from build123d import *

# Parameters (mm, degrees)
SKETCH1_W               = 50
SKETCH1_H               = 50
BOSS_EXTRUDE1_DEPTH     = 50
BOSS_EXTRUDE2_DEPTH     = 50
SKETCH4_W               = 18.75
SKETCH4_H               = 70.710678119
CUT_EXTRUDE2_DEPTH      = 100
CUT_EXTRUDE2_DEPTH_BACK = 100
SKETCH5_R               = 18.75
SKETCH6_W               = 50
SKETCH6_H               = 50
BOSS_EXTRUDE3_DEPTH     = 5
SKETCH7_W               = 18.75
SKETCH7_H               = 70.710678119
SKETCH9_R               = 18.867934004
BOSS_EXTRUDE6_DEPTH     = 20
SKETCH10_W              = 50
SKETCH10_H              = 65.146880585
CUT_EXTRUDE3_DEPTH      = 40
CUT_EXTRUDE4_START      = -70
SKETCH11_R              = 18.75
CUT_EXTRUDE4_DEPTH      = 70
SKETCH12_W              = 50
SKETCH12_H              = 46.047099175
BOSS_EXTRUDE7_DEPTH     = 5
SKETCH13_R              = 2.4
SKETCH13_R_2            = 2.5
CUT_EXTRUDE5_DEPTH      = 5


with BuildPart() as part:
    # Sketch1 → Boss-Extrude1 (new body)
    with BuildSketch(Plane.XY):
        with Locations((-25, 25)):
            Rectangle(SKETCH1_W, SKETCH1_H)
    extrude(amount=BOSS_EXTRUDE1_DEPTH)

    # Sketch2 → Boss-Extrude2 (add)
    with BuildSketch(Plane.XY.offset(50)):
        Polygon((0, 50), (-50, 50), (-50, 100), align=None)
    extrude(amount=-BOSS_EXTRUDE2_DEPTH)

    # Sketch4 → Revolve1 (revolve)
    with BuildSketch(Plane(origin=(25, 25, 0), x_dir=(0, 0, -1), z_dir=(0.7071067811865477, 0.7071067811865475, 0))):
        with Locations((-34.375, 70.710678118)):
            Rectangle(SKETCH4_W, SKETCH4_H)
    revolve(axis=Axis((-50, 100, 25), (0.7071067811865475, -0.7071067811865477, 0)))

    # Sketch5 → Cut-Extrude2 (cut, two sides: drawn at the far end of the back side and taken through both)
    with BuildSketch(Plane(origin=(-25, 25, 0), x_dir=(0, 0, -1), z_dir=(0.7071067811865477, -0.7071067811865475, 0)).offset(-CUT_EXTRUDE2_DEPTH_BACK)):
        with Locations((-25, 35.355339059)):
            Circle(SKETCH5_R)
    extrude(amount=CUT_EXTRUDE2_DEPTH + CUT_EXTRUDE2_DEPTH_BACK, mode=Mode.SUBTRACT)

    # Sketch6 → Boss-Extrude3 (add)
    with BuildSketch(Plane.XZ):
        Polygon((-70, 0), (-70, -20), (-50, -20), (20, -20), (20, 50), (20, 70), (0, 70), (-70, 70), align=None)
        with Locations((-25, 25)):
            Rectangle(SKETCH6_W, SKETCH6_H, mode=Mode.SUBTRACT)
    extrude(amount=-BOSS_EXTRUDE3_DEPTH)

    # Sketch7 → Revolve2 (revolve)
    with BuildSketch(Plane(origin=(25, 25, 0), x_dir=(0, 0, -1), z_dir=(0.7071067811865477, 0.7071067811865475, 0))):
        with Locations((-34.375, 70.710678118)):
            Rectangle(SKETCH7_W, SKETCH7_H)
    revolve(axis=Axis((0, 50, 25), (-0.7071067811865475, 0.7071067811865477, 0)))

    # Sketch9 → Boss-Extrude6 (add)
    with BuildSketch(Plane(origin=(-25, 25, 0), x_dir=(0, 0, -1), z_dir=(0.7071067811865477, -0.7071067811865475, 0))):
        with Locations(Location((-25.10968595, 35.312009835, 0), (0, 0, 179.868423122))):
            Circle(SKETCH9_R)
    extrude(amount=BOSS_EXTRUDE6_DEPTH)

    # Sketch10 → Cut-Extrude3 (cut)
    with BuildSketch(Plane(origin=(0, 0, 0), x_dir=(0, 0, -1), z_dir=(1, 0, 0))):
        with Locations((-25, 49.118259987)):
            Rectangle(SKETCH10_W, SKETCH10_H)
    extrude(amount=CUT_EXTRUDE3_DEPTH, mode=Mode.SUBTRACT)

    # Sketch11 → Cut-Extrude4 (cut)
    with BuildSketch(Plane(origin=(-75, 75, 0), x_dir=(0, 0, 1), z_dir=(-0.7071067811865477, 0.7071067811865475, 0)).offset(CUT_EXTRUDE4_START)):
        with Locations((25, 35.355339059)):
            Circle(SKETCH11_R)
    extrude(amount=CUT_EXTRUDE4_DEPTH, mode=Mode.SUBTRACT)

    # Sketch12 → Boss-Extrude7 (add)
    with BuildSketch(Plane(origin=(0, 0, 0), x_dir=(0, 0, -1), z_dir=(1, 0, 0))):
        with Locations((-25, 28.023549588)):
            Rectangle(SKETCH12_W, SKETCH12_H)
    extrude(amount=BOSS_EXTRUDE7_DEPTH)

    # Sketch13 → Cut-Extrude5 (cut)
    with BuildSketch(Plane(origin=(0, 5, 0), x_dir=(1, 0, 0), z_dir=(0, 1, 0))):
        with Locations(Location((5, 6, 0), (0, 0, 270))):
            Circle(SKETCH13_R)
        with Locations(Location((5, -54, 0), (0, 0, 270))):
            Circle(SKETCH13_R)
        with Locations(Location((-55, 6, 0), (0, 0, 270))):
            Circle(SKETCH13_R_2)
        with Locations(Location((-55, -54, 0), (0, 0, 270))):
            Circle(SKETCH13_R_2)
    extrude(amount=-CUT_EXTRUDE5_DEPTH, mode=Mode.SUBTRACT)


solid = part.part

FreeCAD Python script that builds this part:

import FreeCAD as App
import Part
import Sketcher
from FreeCAD import Vector

doc = App.newDocument("Part")
params = doc.addObject("Spreadsheet::Sheet", "Params")
for row, (alias, value) in enumerate([
    ("sketch1_width", "50 mm"),
    ("pad1_length", "50 mm"),
    ("sketch2_width", "50 mm"),
    ("pad2_length", "50 mm"),
    ("sketch3_width", "18.75 mm"),
    ("revolution_angle", "360 deg"),
    ("sketch4_diameter", "37.5 mm"),
    ("sketch5_width", "90 mm"),
    ("sketch5_width2", "50 mm"),
    ("pad3_length", "5 mm"),
    ("sketch6_width", "18.75 mm"),
    ("revolution2_angle", "360 deg"),
    ("pad4_length", "20 mm"),
    ("sketch8_height", "50 mm"),
    ("pocket2_length", "40 mm"),
    ("sketch9_diameter", "37.5 mm"),
    ("pocket3_length", "70 mm"),
    ("sketch10_height", "50 mm"),
    ("pad5_length", "5 mm"),
    ("sketch11_diameter", "5 mm"),
    ("sketch11_diameter2", "4.8 mm"),
    ("pocket4_length", "5 mm"),
], start=1):
    params.set(f"A{row}", alias)
    params.set(f"B{row}", "=" + value)
    params.setAlias(f"B{row}", alias)

body = doc.addObject("PartDesign::Body", "Body")

sketch1 = body.newObject("Sketcher::SketchObject", "Sketch")
sketch1.AttachmentSupport = (doc.getObject("XY_Plane"), [""])
sketch1.MapMode = "FlatFace"
sketch1.addGeometry(Part.LineSegment(Vector(-50, 50, 0), Vector(-50, 0, 0)), False)
sketch1.addGeometry(Part.LineSegment(Vector(-50, 0, 0), Vector(0, 0, 0)), False)
sketch1.addGeometry(Part.LineSegment(Vector(0, 0, 0), Vector(0, 50, 0)), False)
sketch1.addGeometry(Part.LineSegment(Vector(0, 50, 0), Vector(-50, 50, 0)), False)
sketch1.addConstraint(Sketcher.Constraint("Coincident", 0, 2, 1, 1))
sketch1.addConstraint(Sketcher.Constraint("Coincident", 1, 2, 2, 1))
sketch1.addConstraint(Sketcher.Constraint("Coincident", 2, 2, 3, 1))
sketch1.addConstraint(Sketcher.Constraint("Coincident", 3, 2, 0, 1))
sketch1.addConstraint(Sketcher.Constraint("Vertical", 0))
sketch1.addConstraint(Sketcher.Constraint("Horizontal", 1))
sketch1.addConstraint(Sketcher.Constraint("Vertical", 2))
sketch1.addConstraint(Sketcher.Constraint("Horizontal", 3))
sketch1.addConstraint(Sketcher.Constraint("Coincident", 1, 2, -1, 1))
sketch1.addConstraint(Sketcher.Constraint("Equal", 3, 0))
sketch1.addConstraint(Sketcher.Constraint("DistanceX", 1, 1, 1, 2, 50.0))
sketch1.setExpression("Constraints[10]", "Params.sketch1_width")
pad1 = body.newObject("PartDesign::Pad", "Pad")
pad1.Profile = sketch1
pad1.setExpression("Length", "Params.pad1_length")

sketch2 = body.newObject("Sketcher::SketchObject", "Sketch001")
sketch2.AttachmentSupport = (doc.getObject("XY_Plane"), [""])
sketch2.MapMode = "FlatFace"
sketch2.AttachmentOffset = App.Placement(Vector(0, 0, 50), App.Rotation())
sketch2.addGeometry(Part.LineSegment(Vector(-50, 50, 0), Vector(0, 50, 0)), False)
sketch2.addGeometry(Part.LineSegment(Vector(0, 50, 0), Vector(-50, 100, 0)), False)
sketch2.addGeometry(Part.LineSegment(Vector(-50, 100, 0), Vector(-50, 50, 0)), False)
sketch2.addConstraint(Sketcher.Constraint("Coincident", 0, 2, 1, 1))
sketch2.addConstraint(Sketcher.Constraint("Coincident", 1, 2, 2, 1))
sketch2.addConstraint(Sketcher.Constraint("Coincident", 2, 2, 0, 1))
sketch2.addConstraint(Sketcher.Constraint("Horizontal", 0))
sketch2.addConstraint(Sketcher.Constraint("Vertical", 2))
sketch2.addConstraint(Sketcher.Constraint("PointOnObject", 0, 2, -2))
sketch2.addConstraint(Sketcher.Constraint("Equal", 0, 2))
sketch2.addConstraint(Sketcher.Constraint("DistanceX", 0, 1, 0, 2, 50.0))
sketch2.addConstraint(Sketcher.Constraint("DistanceY", -1, 1, 0, 2, 50.0))
sketch2.setExpression("Constraints[7]", "Params.sketch2_width")
pad2 = body.newObject("PartDesign::Pad", "Pad001")
pad2.Profile = sketch2
pad2.setExpression("Length", "Params.pad2_length")
pad2.Reversed = True

sketch3 = body.newObject("Sketcher::SketchObject", "Sketch002")
sketch3.Placement = App.Placement(Vector(25, 25, 0), App.Rotation(Vector(0, 0, -1), Vector(-0.707106781, 0.707106781, 0), Vector(0.707106781, 0.707106781, 0), "ZXY"))
sketch3.addGeometry(Part.LineSegment(Vector(-44, 106, 0), Vector(-44, 35, 0)), False)
sketch3.addGeometry(Part.LineSegment(Vector(-44, 35, 0), Vector(-25, 35, 0)), False)
sketch3.addGeometry(Part.LineSegment(Vector(-25, 35, 0), Vector(-25, 106, 0)), False)
sketch3.addGeometry(Part.LineSegment(Vector(-25, 106, 0), Vector(-44, 106, 0)), False)
sketch3.addGeometry(Part.LineSegment(Vector(-25, 106, 0), Vector(-25, 35, 0)), True)
sketch3.addConstraint(Sketcher.Constraint("Coincident", 0, 2, 1, 1))
sketch3.addConstraint(Sketcher.Constraint("Coincident", 1, 2, 2, 1))
sketch3.addConstraint(Sketcher.Constraint("Coincident", 2, 2, 3, 1))
sketch3.addConstraint(Sketcher.Constraint("Coincident", 3, 2, 0, 1))
sketch3.addConstraint(Sketcher.Constraint("Vertical", 0))
sketch3.addConstraint(Sketcher.Constraint("Horizontal", 1))
sketch3.addConstraint(Sketcher.Constraint("Vertical", 2))
sketch3.addConstraint(Sketcher.Constraint("Horizontal", 3))
sketch3.addConstraint(Sketcher.Constraint("Vertical", 4))
sketch3.addConstraint(Sketcher.Constraint("Coincident", 4, 1, 2, 2))
sketch3.addConstraint(Sketcher.Constraint("Horizontal", 0, 2, 4, 2))
sketch3.addConstraint(Sketcher.Constraint("DistanceX", 1, 2, -1, 1, 25.0))
sketch3.addConstraint(Sketcher.Constraint("DistanceX", 1, 1, 1, 2, 18.75))
sketch3.addConstraint(Sketcher.Constraint("DistanceY", 0, 2, 0, 1, 70.710678))
sketch3.addConstraint(Sketcher.Constraint("DistanceY", -1, 1, 0, 2, 35.355339))
sketch3.setExpression("Constraints[12]", "Params.sketch3_width")
revolution = body.newObject("PartDesign::Revolution", "Revolution")
revolution.Profile = sketch3
revolution.ReferenceAxis = (sketch3, ["Axis0"])
revolution.setExpression("Angle", "Params.revolution_angle")

sketch4 = body.newObject("Sketcher::SketchObject", "Sketch003")
sketch4.Placement = App.Placement(Vector(-25, 25, 0), App.Rotation(Vector(0, 0, -1), Vector(0.707106781, 0.707106781, 0), Vector(0.707106781, -0.707106781, 0), "ZXY"))
sketch4.addGeometry(Part.Circle(Vector(-25, 35, 0), Vector(0, 0, 1), 19), False)
sketch4.addConstraint(Sketcher.Constraint("Diameter", 0, 37.5))
sketch4.addConstraint(Sketcher.Constraint("DistanceX", 0, 3, -1, 1, 25.0))
sketch4.addConstraint(Sketcher.Constraint("DistanceY", -1, 1, 0, 3, 35.355339))
sketch4.setExpression("Constraints[0]", "Params.sketch4_diameter")
pocket1 = body.newObject("PartDesign::Pocket", "Pocket")
pocket1.Profile = sketch4
pocket1.Type = "ThroughAll"
pocket1.Midplane = True

sketch5 = body.newObject("Sketcher::SketchObject", "Sketch004")
sketch5.AttachmentSupport = (doc.getObject("XZ_Plane"), [""])
sketch5.MapMode = "FlatFace"
sketch5.addGeometry(Part.LineSegment(Vector(-70, -20, 0), Vector(20, -20, 0)), False)
sketch5.addGeometry(Part.LineSegment(Vector(20, -20, 0), Vector(20, 70, 0)), False)
sketch5.addGeometry(Part.LineSegment(Vector(20, 70, 0), Vector(-70, 70, 0)), False)
sketch5.addGeometry(Part.LineSegment(Vector(-70, 70, 0), Vector(-70, -20, 0)), False)
sketch5.addGeometry(Part.LineSegment(Vector(0, 0, 0), Vector(-50, 0, 0)), False)
sketch5.addGeometry(Part.LineSegment(Vector(-50, 0, 0), Vector(-50, 50, 0)), False)
sketch5.addGeometry(Part.LineSegment(Vector(-50, 50, 0), Vector(0, 50, 0)), False)
sketch5.addGeometry(Part.LineSegment(Vector(0, 50, 0), Vector(0, 0, 0)), False)
sketch5.addConstraint(Sketcher.Constraint("Coincident", 0, 2, 1, 1))
sketch5.addConstraint(Sketcher.Constraint("Coincident", 1, 2, 2, 1))
sketch5.addConstraint(Sketcher.Constraint("Coincident", 2, 2, 3, 1))
sketch5.addConstraint(Sketcher.Constraint("Coincident", 3, 2, 0, 1))
sketch5.addConstraint(Sketcher.Constraint("Coincident", 4, 2, 5, 1))
sketch5.addConstraint(Sketcher.Constraint("Coincident", 5, 2, 6, 1))
sketch5.addConstraint(Sketcher.Constraint("Coincident", 6, 2, 7, 1))
sketch5.addConstraint(Sketcher.Constraint("Coincident", 7, 2, 4, 1))
sketch5.addConstraint(Sketcher.Constraint("Horizontal", 0))
sketch5.addConstraint(Sketcher.Constraint("Vertical", 1))
sketch5.addConstraint(Sketcher.Constraint("Horizontal", 2))
sketch5.addConstraint(Sketcher.Constraint("Vertical", 3))
sketch5.addConstraint(Sketcher.Constraint("Horizontal", 4))
sketch5.addConstraint(Sketcher.Constraint("Vertical", 5))
sketch5.addConstraint(Sketcher.Constraint("Horizontal", 6))
sketch5.addConstraint(Sketcher.Constraint("Vertical", 7))
sketch5.addConstraint(Sketcher.Constraint("Coincident", 7, 2, -1, 1))
sketch5.addConstraint(Sketcher.Constraint("Equal", 2, 1))
sketch5.addConstraint(Sketcher.Constraint("Equal", 6, 5))
sketch5.addConstraint(Sketcher.Constraint("DistanceX", 0, 1, 0, 2, 90.0))
sketch5.addConstraint(Sketcher.Constraint("DistanceX", 4, 2, 4, 1, 50.0))
sketch5.addConstraint(Sketcher.Constraint("DistanceX", -1, 1, 0, 2, 20.0))
sketch5.addConstraint(Sketcher.Constraint("DistanceY", 0, 2, -1, 1, 20.0))
sketch5.setExpression("Constraints[19]", "Params.sketch5_width")
sketch5.setExpression("Constraints[20]", "Params.sketch5_width2")
pad3 = body.newObject("PartDesign::Pad", "Pad002")
pad3.Profile = sketch5
pad3.setExpression("Length", "Params.pad3_length")
pad3.Reversed = True

sketch6 = body.newObject("Sketcher::SketchObject", "Sketch005")
sketch6.Placement = App.Placement(Vector(25, 25, 0), App.Rotation(Vector(0, 0, -1), Vector(-0.707106781, 0.707106781, 0), Vector(0.707106781, 0.707106781, 0), "ZXY"))
sketch6.addGeometry(Part.LineSegment(Vector(-44, 106, 0), Vector(-44, 35, 0)), False)
sketch6.addGeometry(Part.LineSegment(Vector(-44, 35, 0), Vector(-25, 35, 0)), False)
sketch6.addGeometry(Part.LineSegment(Vector(-25, 35, 0), Vector(-25, 106, 0)), False)
sketch6.addGeometry(Part.LineSegment(Vector(-25, 106, 0), Vector(-44, 106, 0)), False)
sketch6.addGeometry(Part.LineSegment(Vector(-25, 35, 0), Vector(-25, 106, 0)), True)
sketch6.addConstraint(Sketcher.Constraint("Coincident", 0, 2, 1, 1))
sketch6.addConstraint(Sketcher.Constraint("Coincident", 1, 2, 2, 1))
sketch6.addConstraint(Sketcher.Constraint("Coincident", 2, 2, 3, 1))
sketch6.addConstraint(Sketcher.Constraint("Coincident", 3, 2, 0, 1))
sketch6.addConstraint(Sketcher.Constraint("Vertical", 0))
sketch6.addConstraint(Sketcher.Constraint("Horizontal", 1))
sketch6.addConstraint(Sketcher.Constraint("Vertical", 2))
sketch6.addConstraint(Sketcher.Constraint("Horizontal", 3))
sketch6.addConstraint(Sketcher.Constraint("Vertical", 4))
sketch6.addConstraint(Sketcher.Constraint("Coincident", 4, 1, 1, 2))
sketch6.addConstraint(Sketcher.Constraint("Horizontal", 3, 2, 4, 2))
sketch6.addConstraint(Sketcher.Constraint("DistanceX", 1, 2, -1, 1, 25.0))
sketch6.addConstraint(Sketcher.Constraint("DistanceX", 1, 1, 1, 2, 18.75))
sketch6.addConstraint(Sketcher.Constraint("DistanceY", 0, 2, 0, 1, 70.710678))
sketch6.addConstraint(Sketcher.Constraint("DistanceY", -1, 1, 0, 2, 35.355339))
sketch6.setExpression("Constraints[12]", "Params.sketch6_width")
revolution2 = body.newObject("PartDesign::Revolution", "Revolution001")
revolution2.Profile = sketch6
revolution2.ReferenceAxis = (sketch6, ["Axis0"])
revolution2.setExpression("Angle", "Params.revolution2_angle")

sketch7 = body.newObject("Sketcher::SketchObject", "Sketch006")
sketch7.Placement = App.Placement(Vector(-25, 25, 0), App.Rotation(Vector(0, 0, -1), Vector(0.707106781, 0.707106781, 0), Vector(0.707106781, -0.707106781, 0), "ZXY"))
sketch7.addGeometry(Part.Circle(Vector(-25, 35, 0), Vector(0, 0, 1), 19), False)
sketch7.addConstraint(Sketcher.Constraint("Diameter", 0, 37.735868))
sketch7.addConstraint(Sketcher.Constraint("DistanceY", -1, 1, 0, 3, 35.31201))
sketch7.addConstraint(Sketcher.Constraint("DistanceX", 0, 3, -1, 1, 25.109686))
pad4 = body.newObject("PartDesign::Pad", "Pad003")
pad4.Profile = sketch7
pad4.setExpression("Length", "Params.pad4_length")

sketch8 = body.newObject("Sketcher::SketchObject", "Sketch007")
sketch8.AttachmentSupport = (doc.getObject("YZ_Plane"), [""])
sketch8.MapMode = "FlatFace"
sketch8.addGeometry(Part.LineSegment(Vector(82, 50, 0), Vector(17, 50, 0)), False)
sketch8.addGeometry(Part.LineSegment(Vector(17, 50, 0), Vector(17, 0, 0)), False)
sketch8.addGeometry(Part.LineSegment(Vector(17, 0, 0), Vector(82, 0, 0)), False)
sketch8.addGeometry(Part.LineSegment(Vector(82, 0, 0), Vector(82, 50, 0)), False)
sketch8.addConstraint(Sketcher.Constraint("Coincident", 0, 2, 1, 1))
sketch8.addConstraint(Sketcher.Constraint("Coincident", 1, 2, 2, 1))
sketch8.addConstraint(Sketcher.Constraint("Coincident", 2, 2, 3, 1))
sketch8.addConstraint(Sketcher.Constraint("Coincident", 3, 2, 0, 1))
sketch8.addConstraint(Sketcher.Constraint("Horizontal", 0))
sketch8.addConstraint(Sketcher.Constraint("Vertical", 1))
sketch8.addConstraint(Sketcher.Constraint("Horizontal", 2))
sketch8.addConstraint(Sketcher.Constraint("Vertical", 3))
sketch8.addConstraint(Sketcher.Constraint("PointOnObject", 1, 2, -1))
sketch8.addConstraint(Sketcher.Constraint("DistanceY", 1, 2, 1, 1, 50.0))
sketch8.addConstraint(Sketcher.Constraint("DistanceX", 0, 2, 0, 1, 65.146881))
sketch8.addConstraint(Sketcher.Constraint("DistanceX", -1, 1, 2, 2, 81.6917))
sketch8.setExpression("Constraints[9]", "Params.sketch8_height")
pocket2 = body.newObject("PartDesign::Pocket", "Pocket001")
pocket2.Profile = sketch8
pocket2.setExpression("Length", "Params.pocket2_length")
pocket2.Reversed = True

sketch9 = body.newObject("Sketcher::SketchObject", "Sketch008")
sketch9.Placement = App.Placement(Vector(-25.502525, 25.502525, 0), App.Rotation(Vector(0, 0, 1), Vector(0.707106781, 0.707106781, 0), Vector(-0.707106781, 0.707106781, 0), "ZXY"))
sketch9.addGeometry(Part.Circle(Vector(25, 35, 0), Vector(0, 0, 1), 19), False)
sketch9.addConstraint(Sketcher.Constraint("Diameter", 0, 37.5))
sketch9.addConstraint(Sketcher.Constraint("DistanceX", -1, 1, 0, 3, 25.0))
sketch9.addConstraint(Sketcher.Constraint("DistanceY", -1, 1, 0, 3, 35.355339))
sketch9.setExpression("Constraints[0]", "Params.sketch9_diameter")
pocket3 = body.newObject("PartDesign::Pocket", "Pocket002")
pocket3.Profile = sketch9
pocket3.setExpression("Length", "Params.pocket3_length")
pocket3.Reversed = True

sketch10 = body.newObject("Sketcher::SketchObject", "Sketch009")
sketch10.AttachmentSupport = (doc.getObject("YZ_Plane"), [""])
sketch10.MapMode = "FlatFace"
sketch10.addGeometry(Part.LineSegment(Vector(51, 50, 0), Vector(5, 50, 0)), False)
sketch10.addGeometry(Part.LineSegment(Vector(5, 50, 0), Vector(5, 0, 0)), False)
sketch10.addGeometry(Part.LineSegment(Vector(5, 0, 0), Vector(51, 0, 0)), False)
sketch10.addGeometry(Part.LineSegment(Vector(51, 0, 0), Vector(51, 50, 0)), False)
sketch10.addConstraint(Sketcher.Constraint("Coincident", 0, 2, 1, 1))
sketch10.addConstraint(Sketcher.Constraint("Coincident", 1, 2, 2, 1))
sketch10.addConstraint(Sketcher.Constraint("Coincident", 2, 2, 3, 1))
sketch10.addConstraint(Sketcher.Constraint("Coincident", 3, 2, 0, 1))
sketch10.addConstraint(Sketcher.Constraint("Horizontal", 0))
sketch10.addConstraint(Sketcher.Constraint("Vertical", 1))
sketch10.addConstraint(Sketcher.Constraint("Horizontal", 2))
sketch10.addConstraint(Sketcher.Constraint("Vertical", 3))
sketch10.addConstraint(Sketcher.Constraint("PointOnObject", 1, 2, -1))
sketch10.addConstraint(Sketcher.Constraint("DistanceY", 1, 2, 1, 1, 50.0))
sketch10.addConstraint(Sketcher.Constraint("DistanceX", -1, 1, 0, 2, 5.0))
sketch10.addConstraint(Sketcher.Constraint("DistanceX", 0, 2, 0, 1, 46.047099))
sketch10.setExpression("Constraints[9]", "Params.sketch10_height")
pad5 = body.newObject("PartDesign::Pad", "Pad004")
pad5.Profile = sketch10
pad5.setExpression("Length", "Params.pad5_length")

sketch11 = body.newObject("Sketcher::SketchObject", "Sketch010")
sketch11.AttachmentSupport = (doc.getObject("XZ_Plane"), [""])
sketch11.MapMode = "FlatFace"
sketch11.AttachmentOffset = App.Placement(Vector(0, 0, -5), App.Rotation())
sketch11.addGeometry(Part.Circle(Vector(5, -6, 0), Vector(0, 0, 1), 2.4), False)
sketch11.addGeometry(Part.Circle(Vector(5, 54, 0), Vector(0, 0, 1), 2.4), False)
sketch11.addGeometry(Part.Circle(Vector(-55, -6, 0), Vector(0, 0, 1), 2.5), False)
sketch11.addGeometry(Part.Circle(Vector(-55, 54, 0), Vector(0, 0, 1), 2.5), False)
sketch11.addConstraint(Sketcher.Constraint("Equal", 0, 1))
sketch11.addConstraint(Sketcher.Constraint("Equal", 2, 3))
sketch11.addConstraint(Sketcher.Constraint("Horizontal", 0, 3, 2, 3))
sketch11.addConstraint(Sketcher.Constraint("Horizontal", 1, 3, 3, 3))
sketch11.addConstraint(Sketcher.Constraint("Vertical", 0, 3, 1, 3))
sketch11.addConstraint(Sketcher.Constraint("Vertical", 2, 3, 3, 3))
sketch11.addConstraint(Sketcher.Constraint("Diameter", 2, 5.0))
sketch11.addConstraint(Sketcher.Constraint("Diameter", 0, 4.8))
sketch11.addConstraint(Sketcher.Constraint("DistanceX", -1, 1, 0, 3, 5.0))
sketch11.addConstraint(Sketcher.Constraint("DistanceY", 0, 3, -1, 1, 6.0))
sketch11.addConstraint(Sketcher.Constraint("DistanceY", -1, 1, 1, 3, 54.0))
sketch11.addConstraint(Sketcher.Constraint("DistanceX", 2, 3, -1, 1, 55.0))
sketch11.setExpression("Constraints[6]", "Params.sketch11_diameter")
sketch11.setExpression("Constraints[7]", "Params.sketch11_diameter2")
pocket4 = body.newObject("PartDesign::Pocket", "Pocket003")
pocket4.Profile = sketch11
pocket4.setExpression("Length", "Params.pocket4_length")
pocket4.Reversed = True

doc.recompute()
